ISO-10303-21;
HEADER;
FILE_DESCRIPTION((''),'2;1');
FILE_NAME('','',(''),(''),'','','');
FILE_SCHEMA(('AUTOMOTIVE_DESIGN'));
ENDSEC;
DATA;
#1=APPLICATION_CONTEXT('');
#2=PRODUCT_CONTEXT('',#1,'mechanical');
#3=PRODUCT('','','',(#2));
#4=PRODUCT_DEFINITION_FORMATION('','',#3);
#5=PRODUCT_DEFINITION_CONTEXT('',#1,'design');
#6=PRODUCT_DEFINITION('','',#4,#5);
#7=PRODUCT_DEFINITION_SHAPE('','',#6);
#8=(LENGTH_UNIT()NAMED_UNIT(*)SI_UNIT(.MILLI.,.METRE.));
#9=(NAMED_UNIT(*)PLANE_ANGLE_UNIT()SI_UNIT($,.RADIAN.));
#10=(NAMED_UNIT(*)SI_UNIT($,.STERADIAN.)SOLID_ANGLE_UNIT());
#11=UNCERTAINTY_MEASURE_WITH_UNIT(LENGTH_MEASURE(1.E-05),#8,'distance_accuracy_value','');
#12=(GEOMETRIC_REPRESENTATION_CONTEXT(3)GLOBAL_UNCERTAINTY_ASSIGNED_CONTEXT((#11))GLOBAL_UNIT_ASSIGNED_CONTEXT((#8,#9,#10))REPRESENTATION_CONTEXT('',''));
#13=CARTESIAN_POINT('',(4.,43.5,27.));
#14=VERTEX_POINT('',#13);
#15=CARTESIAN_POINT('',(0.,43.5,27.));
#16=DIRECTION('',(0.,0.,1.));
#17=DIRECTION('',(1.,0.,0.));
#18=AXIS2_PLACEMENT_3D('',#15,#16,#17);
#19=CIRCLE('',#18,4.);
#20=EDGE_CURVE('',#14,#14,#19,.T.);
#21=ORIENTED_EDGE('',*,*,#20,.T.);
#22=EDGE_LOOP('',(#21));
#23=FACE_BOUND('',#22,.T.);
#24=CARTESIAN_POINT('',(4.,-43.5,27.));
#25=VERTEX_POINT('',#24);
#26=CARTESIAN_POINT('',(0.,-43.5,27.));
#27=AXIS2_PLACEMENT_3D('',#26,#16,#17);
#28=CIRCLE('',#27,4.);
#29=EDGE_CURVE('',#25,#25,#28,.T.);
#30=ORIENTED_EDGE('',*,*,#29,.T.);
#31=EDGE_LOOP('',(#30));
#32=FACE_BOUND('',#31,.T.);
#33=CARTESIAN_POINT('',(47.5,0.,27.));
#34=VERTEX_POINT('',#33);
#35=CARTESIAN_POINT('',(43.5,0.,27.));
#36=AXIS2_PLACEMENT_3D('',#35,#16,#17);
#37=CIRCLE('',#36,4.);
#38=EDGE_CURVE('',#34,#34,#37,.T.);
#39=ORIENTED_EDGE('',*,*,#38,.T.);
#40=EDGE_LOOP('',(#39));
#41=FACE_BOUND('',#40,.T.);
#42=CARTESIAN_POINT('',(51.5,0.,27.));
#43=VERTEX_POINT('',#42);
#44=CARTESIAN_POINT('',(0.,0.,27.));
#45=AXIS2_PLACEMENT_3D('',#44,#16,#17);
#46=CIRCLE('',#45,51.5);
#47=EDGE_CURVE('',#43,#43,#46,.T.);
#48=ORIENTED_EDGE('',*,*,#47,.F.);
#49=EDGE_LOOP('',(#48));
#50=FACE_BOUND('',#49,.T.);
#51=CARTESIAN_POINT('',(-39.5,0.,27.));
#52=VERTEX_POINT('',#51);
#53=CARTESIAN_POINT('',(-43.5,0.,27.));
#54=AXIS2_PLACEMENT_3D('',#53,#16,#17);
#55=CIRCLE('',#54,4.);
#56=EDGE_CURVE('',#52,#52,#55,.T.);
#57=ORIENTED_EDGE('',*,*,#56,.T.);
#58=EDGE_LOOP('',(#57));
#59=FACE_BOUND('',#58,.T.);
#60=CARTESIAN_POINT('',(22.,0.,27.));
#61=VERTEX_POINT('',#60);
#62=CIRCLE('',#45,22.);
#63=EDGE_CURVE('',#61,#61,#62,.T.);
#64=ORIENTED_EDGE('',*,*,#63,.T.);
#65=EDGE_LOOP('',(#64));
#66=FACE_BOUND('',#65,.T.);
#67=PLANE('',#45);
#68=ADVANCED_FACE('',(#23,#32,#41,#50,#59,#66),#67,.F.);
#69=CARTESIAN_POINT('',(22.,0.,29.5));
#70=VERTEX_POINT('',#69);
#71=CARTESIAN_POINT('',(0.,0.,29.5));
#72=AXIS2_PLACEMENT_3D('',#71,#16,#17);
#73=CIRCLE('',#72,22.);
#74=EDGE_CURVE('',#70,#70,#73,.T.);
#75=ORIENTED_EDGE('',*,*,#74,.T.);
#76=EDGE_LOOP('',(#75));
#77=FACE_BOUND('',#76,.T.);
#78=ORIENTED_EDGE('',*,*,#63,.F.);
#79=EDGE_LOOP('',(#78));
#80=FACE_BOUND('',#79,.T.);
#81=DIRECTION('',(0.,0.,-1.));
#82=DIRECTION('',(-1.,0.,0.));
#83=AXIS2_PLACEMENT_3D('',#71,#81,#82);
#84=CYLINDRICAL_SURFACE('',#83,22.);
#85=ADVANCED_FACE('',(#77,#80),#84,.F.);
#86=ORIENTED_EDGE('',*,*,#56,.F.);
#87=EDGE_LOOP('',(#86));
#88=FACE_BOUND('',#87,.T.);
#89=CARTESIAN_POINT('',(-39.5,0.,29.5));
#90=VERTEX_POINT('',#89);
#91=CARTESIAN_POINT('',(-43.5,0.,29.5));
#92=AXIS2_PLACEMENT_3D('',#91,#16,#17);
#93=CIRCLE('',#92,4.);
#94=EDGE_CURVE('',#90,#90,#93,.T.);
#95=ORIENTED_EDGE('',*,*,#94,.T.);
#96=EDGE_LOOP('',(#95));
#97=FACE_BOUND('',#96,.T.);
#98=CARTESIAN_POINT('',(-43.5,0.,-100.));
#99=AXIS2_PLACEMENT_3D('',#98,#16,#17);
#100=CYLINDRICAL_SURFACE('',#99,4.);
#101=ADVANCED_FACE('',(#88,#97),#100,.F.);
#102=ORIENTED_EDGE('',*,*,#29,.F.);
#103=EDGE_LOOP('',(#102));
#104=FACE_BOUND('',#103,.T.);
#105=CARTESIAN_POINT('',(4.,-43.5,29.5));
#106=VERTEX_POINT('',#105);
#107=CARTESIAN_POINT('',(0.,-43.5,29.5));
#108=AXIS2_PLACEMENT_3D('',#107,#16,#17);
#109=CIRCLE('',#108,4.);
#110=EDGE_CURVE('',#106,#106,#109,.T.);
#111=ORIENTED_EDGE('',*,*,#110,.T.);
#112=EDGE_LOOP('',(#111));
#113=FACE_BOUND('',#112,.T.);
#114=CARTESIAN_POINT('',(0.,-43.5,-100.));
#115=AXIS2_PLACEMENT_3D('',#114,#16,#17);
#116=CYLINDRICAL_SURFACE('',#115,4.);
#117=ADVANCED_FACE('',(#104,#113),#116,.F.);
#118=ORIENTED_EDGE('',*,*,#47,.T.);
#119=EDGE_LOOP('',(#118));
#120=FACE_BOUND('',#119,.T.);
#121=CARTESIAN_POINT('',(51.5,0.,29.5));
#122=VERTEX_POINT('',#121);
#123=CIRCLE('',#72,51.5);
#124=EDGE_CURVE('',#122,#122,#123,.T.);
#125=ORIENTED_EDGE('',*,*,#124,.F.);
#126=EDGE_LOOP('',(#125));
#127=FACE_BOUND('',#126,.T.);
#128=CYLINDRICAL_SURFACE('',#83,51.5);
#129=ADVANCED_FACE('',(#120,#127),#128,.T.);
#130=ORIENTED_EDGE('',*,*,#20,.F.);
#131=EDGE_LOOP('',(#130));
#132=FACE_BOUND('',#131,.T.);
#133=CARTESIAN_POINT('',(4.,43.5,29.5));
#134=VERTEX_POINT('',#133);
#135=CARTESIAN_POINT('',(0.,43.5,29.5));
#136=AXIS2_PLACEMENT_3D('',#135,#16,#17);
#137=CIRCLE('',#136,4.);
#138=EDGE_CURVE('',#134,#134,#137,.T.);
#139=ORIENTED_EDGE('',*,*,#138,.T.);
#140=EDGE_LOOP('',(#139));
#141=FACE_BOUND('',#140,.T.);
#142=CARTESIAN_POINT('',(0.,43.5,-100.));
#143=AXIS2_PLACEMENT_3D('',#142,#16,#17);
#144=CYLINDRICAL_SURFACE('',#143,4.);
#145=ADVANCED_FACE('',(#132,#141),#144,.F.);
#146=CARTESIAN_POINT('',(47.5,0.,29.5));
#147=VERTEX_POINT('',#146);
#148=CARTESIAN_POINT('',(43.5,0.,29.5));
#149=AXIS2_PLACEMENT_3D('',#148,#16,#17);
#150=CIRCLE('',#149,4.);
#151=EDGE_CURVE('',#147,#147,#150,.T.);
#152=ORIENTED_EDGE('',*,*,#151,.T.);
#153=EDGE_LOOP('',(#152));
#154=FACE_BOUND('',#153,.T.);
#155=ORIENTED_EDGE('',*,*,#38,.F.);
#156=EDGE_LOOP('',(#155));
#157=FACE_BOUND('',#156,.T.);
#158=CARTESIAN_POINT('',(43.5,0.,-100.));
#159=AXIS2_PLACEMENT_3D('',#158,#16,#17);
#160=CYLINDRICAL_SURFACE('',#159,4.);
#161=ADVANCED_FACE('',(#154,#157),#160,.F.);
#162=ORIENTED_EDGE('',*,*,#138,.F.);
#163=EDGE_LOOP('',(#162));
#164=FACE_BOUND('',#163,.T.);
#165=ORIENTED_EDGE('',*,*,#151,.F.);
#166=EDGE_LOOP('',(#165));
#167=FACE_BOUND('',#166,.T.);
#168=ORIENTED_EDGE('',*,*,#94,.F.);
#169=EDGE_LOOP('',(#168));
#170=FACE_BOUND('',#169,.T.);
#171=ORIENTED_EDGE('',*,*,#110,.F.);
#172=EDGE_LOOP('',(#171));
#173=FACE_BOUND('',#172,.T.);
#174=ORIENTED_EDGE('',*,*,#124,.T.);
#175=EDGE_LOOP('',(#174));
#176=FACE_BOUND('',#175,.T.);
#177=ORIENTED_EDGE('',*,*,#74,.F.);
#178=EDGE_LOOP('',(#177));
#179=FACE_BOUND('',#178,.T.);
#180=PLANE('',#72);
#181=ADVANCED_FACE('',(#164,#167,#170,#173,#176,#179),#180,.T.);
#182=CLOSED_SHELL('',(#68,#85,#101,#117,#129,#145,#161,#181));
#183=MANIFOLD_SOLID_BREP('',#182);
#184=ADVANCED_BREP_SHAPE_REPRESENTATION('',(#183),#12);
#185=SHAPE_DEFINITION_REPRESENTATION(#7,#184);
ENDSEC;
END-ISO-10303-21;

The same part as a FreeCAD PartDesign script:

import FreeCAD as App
import Part
import Sketcher
from FreeCAD import Vector
Q = App.Units.Quantity

doc = App.newDocument("Part")
body = doc.addObject("PartDesign::Body", "Body")

# Sketch on XY plane
sketch1 = body.newObject("Sketcher::SketchObject", "Sketch")
sketch1.AttachmentSupport = (doc.getObject("XY_Plane"), [""])
sketch1.MapMode = "FlatFace"
sketch1.AttachmentOffset = App.Placement(Vector(0, 0, 27), App.Rotation())
sketch1.addGeometry([
    Part.Circle(Vector(0, 0, 0), Vector(0, 0, 1), 51.5),
    Part.Circle(Vector(0, 0, 0), Vector(0, 0, 1), 22),
], False)
sketch1.addConstraint([
    Sketcher.Constraint("Coincident", 0, 3, -1, 1),
    Sketcher.Constraint("Coincident", 1, 3, -1, 1),
    Sketcher.Constraint("Diameter", 0, Q("103 mm")),
    Sketcher.Constraint("Diameter", 1, Q("44 mm")),
])
pad1 = body.newObject("PartDesign::Pad", "Pad")
pad1.Profile = sketch1
pad1.Length = 2.5

# Sketch on XY plane
sketch2 = body.newObject("Sketcher::SketchObject", "Sketch001")
sketch2.AttachmentSupport = (doc.getObject("XY_Plane"), [""])
sketch2.MapMode = "FlatFace"
sketch2.addGeometry([
    Part.Circle(Vector(43.5, 0, 0), Vector(0, 0, 1), 4),
    Part.Circle(Vector(0, 43.5, 0), Vector(0, 0, 1), 4),
    Part.Circle(Vector(-43.5, 0, 0), Vector(0, 0, 1), 4),
    Part.Circle(Vector(0, -43.5, 0), Vector(0, 0, 1), 4),
], False)
sketch2.addConstraint([
    Sketcher.Constraint("Equal", 0, 1),
    Sketcher.Constraint("Equal", 1, 2),
    Sketcher.Constraint("Equal", 2, 3),
    Sketcher.Constraint("Symmetric", 0, 3, 2, 3, -1, 1),
    Sketcher.Constraint("Symmetric", 1, 3, 3, 3, -1, 1),
    Sketcher.Constraint("PointOnObject", 0, 3, -1),
    Sketcher.Constraint("PointOnObject", 1, 3, -2),
    Sketcher.Constraint("Diameter", 0, Q("8 mm")),
    Sketcher.Constraint("DistanceX", 2, 3, 0, 3, Q("87 mm")),
    Sketcher.Constraint("DistanceY", 3, 3, 1, 3, Q("87 mm")),
])
pocket1 = body.newObject("PartDesign::Pocket", "Pocket")
pocket1.Profile = sketch2
pocket1.Length = 200
pocket1.Midplane = True

doc.recompute()
